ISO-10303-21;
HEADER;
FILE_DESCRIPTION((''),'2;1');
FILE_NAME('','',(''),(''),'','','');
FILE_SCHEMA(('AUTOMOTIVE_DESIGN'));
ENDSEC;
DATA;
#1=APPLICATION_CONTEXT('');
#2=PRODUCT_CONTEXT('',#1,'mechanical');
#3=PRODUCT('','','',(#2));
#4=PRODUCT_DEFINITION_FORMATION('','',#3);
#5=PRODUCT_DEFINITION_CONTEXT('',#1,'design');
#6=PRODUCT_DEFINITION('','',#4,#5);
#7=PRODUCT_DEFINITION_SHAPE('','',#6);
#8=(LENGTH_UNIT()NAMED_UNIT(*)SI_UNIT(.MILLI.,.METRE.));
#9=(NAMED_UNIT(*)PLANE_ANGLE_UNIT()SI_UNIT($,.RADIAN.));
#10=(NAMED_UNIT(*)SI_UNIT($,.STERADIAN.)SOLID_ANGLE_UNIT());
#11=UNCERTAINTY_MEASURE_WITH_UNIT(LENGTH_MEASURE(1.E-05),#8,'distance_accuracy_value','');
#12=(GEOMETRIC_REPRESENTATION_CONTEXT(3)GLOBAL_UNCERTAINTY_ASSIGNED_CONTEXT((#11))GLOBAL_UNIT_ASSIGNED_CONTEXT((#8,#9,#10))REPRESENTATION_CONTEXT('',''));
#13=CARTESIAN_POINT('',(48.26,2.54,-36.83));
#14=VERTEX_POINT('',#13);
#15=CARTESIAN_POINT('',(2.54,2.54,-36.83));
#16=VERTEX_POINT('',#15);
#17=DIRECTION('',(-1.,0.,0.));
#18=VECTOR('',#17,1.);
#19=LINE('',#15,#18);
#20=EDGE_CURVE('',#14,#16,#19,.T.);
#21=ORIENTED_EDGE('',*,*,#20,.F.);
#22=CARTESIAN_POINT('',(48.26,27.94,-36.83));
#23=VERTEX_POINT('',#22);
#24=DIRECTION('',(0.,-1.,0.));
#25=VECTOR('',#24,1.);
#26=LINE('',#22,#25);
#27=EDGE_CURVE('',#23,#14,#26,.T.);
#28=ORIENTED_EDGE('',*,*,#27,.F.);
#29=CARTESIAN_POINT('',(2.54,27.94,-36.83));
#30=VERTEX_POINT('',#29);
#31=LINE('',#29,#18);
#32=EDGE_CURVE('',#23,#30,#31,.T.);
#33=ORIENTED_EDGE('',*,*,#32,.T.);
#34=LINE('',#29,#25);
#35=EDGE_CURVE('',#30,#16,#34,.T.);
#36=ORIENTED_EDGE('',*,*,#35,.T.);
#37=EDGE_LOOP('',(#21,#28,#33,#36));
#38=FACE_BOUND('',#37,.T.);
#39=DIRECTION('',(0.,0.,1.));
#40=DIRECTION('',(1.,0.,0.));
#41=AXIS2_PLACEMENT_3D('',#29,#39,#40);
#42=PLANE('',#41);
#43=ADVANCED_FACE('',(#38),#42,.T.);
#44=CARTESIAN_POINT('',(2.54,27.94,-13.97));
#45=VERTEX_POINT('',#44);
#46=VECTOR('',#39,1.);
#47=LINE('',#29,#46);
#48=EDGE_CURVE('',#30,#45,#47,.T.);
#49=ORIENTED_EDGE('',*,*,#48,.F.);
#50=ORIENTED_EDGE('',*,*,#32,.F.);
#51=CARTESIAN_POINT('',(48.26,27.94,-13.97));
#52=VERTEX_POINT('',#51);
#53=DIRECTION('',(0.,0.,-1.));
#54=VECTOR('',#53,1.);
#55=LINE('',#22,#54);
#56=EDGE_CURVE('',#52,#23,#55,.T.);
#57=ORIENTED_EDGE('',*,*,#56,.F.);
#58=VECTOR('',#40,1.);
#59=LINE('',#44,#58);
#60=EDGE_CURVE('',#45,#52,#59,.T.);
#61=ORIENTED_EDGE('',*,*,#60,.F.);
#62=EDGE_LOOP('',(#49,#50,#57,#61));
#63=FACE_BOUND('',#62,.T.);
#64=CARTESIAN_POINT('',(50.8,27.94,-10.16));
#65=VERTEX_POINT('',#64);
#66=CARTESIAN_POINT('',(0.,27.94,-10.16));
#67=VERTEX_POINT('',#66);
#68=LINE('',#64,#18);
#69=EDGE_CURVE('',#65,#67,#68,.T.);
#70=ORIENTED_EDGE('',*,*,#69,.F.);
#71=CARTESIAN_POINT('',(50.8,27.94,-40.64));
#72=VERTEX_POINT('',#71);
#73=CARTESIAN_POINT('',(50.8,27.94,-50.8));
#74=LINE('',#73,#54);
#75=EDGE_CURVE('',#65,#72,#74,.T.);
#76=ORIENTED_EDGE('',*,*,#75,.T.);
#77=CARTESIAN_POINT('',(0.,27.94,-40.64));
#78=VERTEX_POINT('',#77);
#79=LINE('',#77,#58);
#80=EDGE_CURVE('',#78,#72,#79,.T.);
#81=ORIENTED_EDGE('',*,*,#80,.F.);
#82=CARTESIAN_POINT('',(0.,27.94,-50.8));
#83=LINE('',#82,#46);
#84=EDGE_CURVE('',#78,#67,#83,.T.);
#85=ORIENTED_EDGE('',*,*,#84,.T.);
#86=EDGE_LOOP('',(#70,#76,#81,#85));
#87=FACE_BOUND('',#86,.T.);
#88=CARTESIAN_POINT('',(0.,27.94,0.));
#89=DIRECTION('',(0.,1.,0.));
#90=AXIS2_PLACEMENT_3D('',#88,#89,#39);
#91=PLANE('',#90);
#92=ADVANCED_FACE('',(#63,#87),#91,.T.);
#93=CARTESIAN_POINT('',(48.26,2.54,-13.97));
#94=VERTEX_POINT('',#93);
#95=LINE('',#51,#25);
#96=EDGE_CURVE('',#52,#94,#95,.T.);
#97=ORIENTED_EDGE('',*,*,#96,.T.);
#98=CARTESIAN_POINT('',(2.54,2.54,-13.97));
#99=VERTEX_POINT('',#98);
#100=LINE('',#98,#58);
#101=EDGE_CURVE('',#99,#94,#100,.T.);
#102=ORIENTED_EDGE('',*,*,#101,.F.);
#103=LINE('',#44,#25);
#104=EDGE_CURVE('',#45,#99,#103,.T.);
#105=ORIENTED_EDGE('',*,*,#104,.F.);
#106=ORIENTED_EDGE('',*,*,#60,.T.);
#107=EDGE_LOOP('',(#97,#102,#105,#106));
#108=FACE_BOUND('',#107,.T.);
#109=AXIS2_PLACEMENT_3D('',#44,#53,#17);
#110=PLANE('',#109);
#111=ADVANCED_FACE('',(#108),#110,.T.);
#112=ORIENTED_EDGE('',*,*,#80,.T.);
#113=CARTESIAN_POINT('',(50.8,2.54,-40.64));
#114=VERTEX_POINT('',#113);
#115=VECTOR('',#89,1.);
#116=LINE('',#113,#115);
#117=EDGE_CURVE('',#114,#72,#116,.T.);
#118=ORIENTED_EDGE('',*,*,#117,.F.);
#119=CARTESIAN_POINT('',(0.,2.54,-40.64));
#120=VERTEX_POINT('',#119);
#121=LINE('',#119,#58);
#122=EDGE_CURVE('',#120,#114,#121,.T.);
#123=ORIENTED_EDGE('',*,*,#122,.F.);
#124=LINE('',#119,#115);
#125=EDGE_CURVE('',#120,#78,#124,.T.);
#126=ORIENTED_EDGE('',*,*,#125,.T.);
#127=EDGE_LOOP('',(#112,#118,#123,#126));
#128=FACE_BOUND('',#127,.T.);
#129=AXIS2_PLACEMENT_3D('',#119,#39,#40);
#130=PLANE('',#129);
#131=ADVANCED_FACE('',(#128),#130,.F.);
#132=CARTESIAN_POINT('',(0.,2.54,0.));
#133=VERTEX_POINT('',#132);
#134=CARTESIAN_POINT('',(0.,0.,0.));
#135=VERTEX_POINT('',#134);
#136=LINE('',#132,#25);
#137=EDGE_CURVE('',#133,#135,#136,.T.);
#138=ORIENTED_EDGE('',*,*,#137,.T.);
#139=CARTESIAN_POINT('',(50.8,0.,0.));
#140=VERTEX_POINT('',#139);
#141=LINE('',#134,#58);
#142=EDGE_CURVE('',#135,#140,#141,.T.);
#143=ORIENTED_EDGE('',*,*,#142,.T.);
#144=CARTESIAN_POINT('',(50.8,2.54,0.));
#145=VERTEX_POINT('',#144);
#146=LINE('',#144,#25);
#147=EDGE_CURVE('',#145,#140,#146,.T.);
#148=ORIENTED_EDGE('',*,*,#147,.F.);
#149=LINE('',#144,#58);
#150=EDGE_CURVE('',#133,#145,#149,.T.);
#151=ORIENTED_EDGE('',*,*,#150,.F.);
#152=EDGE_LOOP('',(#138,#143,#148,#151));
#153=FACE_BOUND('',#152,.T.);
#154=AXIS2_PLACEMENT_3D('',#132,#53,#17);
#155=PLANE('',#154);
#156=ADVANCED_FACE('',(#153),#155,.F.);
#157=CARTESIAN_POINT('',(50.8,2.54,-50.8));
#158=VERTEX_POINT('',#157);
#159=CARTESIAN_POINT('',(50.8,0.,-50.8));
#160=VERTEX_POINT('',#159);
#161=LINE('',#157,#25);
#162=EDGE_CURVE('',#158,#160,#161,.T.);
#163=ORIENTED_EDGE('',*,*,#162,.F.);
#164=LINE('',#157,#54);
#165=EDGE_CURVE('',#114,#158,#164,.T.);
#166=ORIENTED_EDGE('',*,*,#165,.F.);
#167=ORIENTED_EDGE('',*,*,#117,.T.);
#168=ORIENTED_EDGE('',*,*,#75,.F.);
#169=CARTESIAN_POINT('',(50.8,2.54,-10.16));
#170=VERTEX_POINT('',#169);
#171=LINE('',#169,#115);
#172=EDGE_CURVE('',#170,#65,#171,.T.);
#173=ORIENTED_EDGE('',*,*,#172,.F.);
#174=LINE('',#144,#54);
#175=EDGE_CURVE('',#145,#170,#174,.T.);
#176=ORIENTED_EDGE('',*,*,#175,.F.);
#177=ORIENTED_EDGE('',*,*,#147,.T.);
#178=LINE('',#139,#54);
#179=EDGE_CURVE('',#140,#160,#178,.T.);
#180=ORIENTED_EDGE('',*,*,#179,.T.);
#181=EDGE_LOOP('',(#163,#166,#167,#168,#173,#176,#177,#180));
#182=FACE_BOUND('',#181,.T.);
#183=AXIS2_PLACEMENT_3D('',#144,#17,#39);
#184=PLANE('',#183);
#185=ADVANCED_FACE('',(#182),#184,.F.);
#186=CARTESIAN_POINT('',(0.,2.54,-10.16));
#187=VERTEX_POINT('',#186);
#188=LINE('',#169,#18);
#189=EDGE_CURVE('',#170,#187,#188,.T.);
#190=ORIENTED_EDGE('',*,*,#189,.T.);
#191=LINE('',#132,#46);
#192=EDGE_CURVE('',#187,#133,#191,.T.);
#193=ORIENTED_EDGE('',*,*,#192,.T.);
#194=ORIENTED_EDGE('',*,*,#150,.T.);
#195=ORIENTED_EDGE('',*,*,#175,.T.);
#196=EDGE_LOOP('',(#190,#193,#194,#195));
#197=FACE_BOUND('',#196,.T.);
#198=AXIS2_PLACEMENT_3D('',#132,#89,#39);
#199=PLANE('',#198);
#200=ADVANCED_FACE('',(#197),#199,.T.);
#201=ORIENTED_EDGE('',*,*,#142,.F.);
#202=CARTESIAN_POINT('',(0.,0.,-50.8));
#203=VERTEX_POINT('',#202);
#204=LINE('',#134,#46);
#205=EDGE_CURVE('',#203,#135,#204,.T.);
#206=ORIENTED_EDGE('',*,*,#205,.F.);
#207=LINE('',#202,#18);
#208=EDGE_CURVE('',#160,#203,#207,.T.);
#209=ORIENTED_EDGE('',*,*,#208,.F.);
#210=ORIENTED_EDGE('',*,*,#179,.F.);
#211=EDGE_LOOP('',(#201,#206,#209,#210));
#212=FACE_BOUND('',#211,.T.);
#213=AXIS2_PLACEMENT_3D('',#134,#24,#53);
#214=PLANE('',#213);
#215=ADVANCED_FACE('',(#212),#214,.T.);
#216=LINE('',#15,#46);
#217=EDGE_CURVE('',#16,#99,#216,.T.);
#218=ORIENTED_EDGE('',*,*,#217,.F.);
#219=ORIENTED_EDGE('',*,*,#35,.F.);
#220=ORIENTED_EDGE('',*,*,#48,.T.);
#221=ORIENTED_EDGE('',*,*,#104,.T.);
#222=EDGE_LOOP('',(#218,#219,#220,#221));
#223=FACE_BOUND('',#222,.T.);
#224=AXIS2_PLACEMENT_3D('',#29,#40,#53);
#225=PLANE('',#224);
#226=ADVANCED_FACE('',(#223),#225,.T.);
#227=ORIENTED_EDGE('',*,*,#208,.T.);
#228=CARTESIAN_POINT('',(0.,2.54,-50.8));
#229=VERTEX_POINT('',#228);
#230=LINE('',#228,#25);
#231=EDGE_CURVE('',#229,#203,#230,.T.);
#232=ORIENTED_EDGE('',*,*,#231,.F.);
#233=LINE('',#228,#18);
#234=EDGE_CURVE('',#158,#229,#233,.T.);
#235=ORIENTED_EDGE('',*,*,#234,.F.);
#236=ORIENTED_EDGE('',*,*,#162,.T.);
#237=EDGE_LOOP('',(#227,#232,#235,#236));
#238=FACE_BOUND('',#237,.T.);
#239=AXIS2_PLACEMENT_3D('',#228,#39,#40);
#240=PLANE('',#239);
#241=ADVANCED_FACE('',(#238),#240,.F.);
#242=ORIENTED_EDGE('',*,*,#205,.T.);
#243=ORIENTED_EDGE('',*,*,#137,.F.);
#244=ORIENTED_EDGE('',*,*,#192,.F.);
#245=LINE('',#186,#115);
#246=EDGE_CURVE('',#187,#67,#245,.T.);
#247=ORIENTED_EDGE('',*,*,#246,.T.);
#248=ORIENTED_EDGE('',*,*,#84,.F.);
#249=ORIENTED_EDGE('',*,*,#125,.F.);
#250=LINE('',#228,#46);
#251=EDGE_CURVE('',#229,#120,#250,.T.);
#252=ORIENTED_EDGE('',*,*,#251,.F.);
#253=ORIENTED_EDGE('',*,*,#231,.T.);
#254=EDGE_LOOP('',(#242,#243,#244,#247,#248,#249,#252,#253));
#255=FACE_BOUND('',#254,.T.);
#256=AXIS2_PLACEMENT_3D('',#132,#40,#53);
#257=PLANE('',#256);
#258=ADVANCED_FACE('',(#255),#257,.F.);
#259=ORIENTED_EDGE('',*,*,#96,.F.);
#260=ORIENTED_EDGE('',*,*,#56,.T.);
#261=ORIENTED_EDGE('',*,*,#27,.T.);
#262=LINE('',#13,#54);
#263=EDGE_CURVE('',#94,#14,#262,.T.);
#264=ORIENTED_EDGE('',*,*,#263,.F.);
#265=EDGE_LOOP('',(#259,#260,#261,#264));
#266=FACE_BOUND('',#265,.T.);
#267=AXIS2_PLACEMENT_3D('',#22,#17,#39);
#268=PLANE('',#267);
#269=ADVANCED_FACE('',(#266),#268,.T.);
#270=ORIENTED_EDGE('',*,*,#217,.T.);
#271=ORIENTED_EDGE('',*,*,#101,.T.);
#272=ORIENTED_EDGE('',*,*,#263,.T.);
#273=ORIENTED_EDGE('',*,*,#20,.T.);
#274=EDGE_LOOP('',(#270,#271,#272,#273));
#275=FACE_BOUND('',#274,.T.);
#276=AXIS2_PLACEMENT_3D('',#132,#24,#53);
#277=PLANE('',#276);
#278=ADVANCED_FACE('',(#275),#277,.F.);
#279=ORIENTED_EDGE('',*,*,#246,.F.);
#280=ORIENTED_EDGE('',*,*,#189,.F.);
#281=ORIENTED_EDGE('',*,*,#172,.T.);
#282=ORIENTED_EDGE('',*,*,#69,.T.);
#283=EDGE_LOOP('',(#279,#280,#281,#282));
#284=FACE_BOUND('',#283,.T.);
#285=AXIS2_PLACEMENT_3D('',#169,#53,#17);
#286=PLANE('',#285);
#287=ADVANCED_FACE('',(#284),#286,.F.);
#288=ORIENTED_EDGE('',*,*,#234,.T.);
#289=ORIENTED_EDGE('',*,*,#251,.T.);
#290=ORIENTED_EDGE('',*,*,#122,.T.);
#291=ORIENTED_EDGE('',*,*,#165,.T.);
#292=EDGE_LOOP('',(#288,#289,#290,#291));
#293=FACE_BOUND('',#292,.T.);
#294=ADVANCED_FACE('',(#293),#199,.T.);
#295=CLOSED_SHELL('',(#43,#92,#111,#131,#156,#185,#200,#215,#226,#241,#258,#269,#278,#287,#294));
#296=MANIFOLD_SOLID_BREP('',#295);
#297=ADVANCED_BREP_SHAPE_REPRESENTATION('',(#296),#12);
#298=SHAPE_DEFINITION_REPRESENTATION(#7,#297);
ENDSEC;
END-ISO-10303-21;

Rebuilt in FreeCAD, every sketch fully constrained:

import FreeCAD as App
import Part
import Sketcher
from FreeCAD import Vector
Q = App.Units.Quantity


def add_polygon(sketch, points):
    """Adds a closed chain of lines whose ends are joined by coincident constraints."""
    first, n = sketch.GeometryCount, len(points)
    for a, b in zip(points, points[1:] + points[:1]):
        sketch.addGeometry(Part.LineSegment(App.Vector(*a, 0), App.Vector(*b, 0)), False)
    for i in range(n):
        sketch.addConstraint(Sketcher.Constraint("Coincident", first + i, 2, first + (i + 1) % n, 1))

doc = App.newDocument("Part")
body = doc.addObject("PartDesign::Body", "Body")

sketch1 = body.newObject("Sketcher::SketchObject", "Sketch")
sketch1.AttachmentSupport = (doc.getObject("XZ_Plane"), [""])
sketch1.MapMode = "FlatFace"
add_polygon(sketch1, [(0, -50.8), (0, 0), (50.8, 0), (50.8, -50.8)])
sketch1.addConstraint(Sketcher.Constraint("Vertical", 0))
sketch1.addConstraint(Sketcher.Constraint("Horizontal", 1))
sketch1.addConstraint(Sketcher.Constraint("Vertical", 2))
sketch1.addConstraint(Sketcher.Constraint("Horizontal", 3))
sketch1.addConstraint(Sketcher.Constraint("Coincident", 0, 2, -1, 1))
sketch1.addConstraint(Sketcher.Constraint("Equal", 3, 0))
sketch1.addConstraint(Sketcher.Constraint("DistanceX", 1, 1, 1, 2, Q("2 in")))
pad1 = body.newObject("PartDesign::Pad", "Pad")
pad1.Profile = sketch1
pad1.Length = Q("0.1 in")
pad1.Reversed = True

sketch2 = body.newObject("Sketcher::SketchObject", "Sketch001")
sketch2.AttachmentSupport = (doc.getObject("XZ_Plane"), [""])
sketch2.MapMode = "FlatFace"
sketch2.AttachmentOffset = App.Placement(Vector(0, 0, -0.1 * 25.4), App.Rotation())
add_polygon(sketch2, [(0, -50.8), (0, 0), (50.8, 0), (50.8, -50.8)])
add_polygon(sketch2, [(48.26, -13.97), (2.54, -13.97), (2.54, -36.83), (48.26, -36.83)])
sketch2.addConstraint(Sketcher.Constraint("Vertical", 0))
sketch2.addConstraint(Sketcher.Constraint("Horizontal", 1))
sketch2.addConstraint(Sketcher.Constraint("Vertical", 2))
sketch2.addConstraint(Sketcher.Constraint("Horizontal", 3))
sketch2.addConstraint(Sketcher.Constraint("Horizontal", 4))
sketch2.addConstraint(Sketcher.Constraint("Vertical", 5))
sketch2.addConstraint(Sketcher.Constraint("Horizontal", 6))
sketch2.addConstraint(Sketcher.Constraint("Vertical", 7))
sketch2.addConstraint(Sketcher.Constraint("Coincident", 0, 2, -1, 1))
sketch2.addConstraint(Sketcher.Constraint("Equal", 3, 0))
sketch2.addConstraint(Sketcher.Constraint("DistanceX", 1, 1, 1, 2, Q("2 in")))
sketch2.addConstraint(Sketcher.Constraint("DistanceX", 4, 2, 4, 1, Q("1.8 in")))
sketch2.addConstraint(Sketcher.Constraint("DistanceY", 5, 2, 5, 1, Q("0.9 in")))
sketch2.addConstraint(Sketcher.Constraint("DistanceX", -1, 1, 4, 2, Q("0.1 in")))
sketch2.addConstraint(Sketcher.Constraint("DistanceY", 4, 2, -1, 1, Q("0.55 in")))
pad2 = body.newObject("PartDesign::Pad", "Pad001")
pad2.Profile = sketch2
pad2.Length = Q("1 in")
pad2.Reversed = True

sketch3 = body.newObject("Sketcher::SketchObject", "Sketch002")
sketch3.AttachmentSupport = (doc.getObject("XZ_Plane"), [""])
sketch3.MapMode = "FlatFace"
sketch3.AttachmentOffset = App.Placement(Vector(0, 0, -1.1 * 25.4), App.Rotation())
add_polygon(sketch3, [(0, -50.8), (0, -40.64), (50.8, -40.64), (50.8, -50.8)])
add_polygon(sketch3, [(0, -10.16), (0, 0), (50.8, 0), (50.8, -10.16)])
sketch3.addConstraint(Sketcher.Constraint("Vertical", 0))
sketch3.addConstraint(Sketcher.Constraint("Horizontal", 1))
sketch3.addConstraint(Sketcher.Constraint("Vertical", 2))
sketch3.addConstraint(Sketcher.Constraint("Horizontal", 3))
sketch3.addConstraint(Sketcher.Constraint("Vertical", 4))
sketch3.addConstraint(Sketcher.Constraint("Horizontal", 5))
sketch3.addConstraint(Sketcher.Constraint("Vertical", 6))
sketch3.addConstraint(Sketcher.Constraint("Horizontal", 7))
sketch3.addConstraint(Sketcher.Constraint("Coincident", 4, 2, -1, 1))
sketch3.addConstraint(Sketcher.Constraint("PointOnObject", 0, 2, -2))
sketch3.addConstraint(Sketcher.Constraint("Vertical", 2, 2, 5, 2))
sketch3.addConstraint(Sketcher.Constraint("Equal", 2, 4))
sketch3.addConstraint(Sketcher.Constraint("DistanceX", 1, 1, 1, 2, Q("2 in")))
sketch3.addConstraint(Sketcher.Constraint("DistanceY", 0, 1, 0, 2, Q("0.4 in")))
sketch3.addConstraint(Sketcher.Constraint("DistanceY", 2, 2, -1, 1, Q("2 in")))
pocket1 = body.newObject("PartDesign::Pocket", "Pocket")
pocket1.Profile = sketch3
pocket1.Length = Q("1 in")
pocket1.Reversed = True

doc.recompute()
